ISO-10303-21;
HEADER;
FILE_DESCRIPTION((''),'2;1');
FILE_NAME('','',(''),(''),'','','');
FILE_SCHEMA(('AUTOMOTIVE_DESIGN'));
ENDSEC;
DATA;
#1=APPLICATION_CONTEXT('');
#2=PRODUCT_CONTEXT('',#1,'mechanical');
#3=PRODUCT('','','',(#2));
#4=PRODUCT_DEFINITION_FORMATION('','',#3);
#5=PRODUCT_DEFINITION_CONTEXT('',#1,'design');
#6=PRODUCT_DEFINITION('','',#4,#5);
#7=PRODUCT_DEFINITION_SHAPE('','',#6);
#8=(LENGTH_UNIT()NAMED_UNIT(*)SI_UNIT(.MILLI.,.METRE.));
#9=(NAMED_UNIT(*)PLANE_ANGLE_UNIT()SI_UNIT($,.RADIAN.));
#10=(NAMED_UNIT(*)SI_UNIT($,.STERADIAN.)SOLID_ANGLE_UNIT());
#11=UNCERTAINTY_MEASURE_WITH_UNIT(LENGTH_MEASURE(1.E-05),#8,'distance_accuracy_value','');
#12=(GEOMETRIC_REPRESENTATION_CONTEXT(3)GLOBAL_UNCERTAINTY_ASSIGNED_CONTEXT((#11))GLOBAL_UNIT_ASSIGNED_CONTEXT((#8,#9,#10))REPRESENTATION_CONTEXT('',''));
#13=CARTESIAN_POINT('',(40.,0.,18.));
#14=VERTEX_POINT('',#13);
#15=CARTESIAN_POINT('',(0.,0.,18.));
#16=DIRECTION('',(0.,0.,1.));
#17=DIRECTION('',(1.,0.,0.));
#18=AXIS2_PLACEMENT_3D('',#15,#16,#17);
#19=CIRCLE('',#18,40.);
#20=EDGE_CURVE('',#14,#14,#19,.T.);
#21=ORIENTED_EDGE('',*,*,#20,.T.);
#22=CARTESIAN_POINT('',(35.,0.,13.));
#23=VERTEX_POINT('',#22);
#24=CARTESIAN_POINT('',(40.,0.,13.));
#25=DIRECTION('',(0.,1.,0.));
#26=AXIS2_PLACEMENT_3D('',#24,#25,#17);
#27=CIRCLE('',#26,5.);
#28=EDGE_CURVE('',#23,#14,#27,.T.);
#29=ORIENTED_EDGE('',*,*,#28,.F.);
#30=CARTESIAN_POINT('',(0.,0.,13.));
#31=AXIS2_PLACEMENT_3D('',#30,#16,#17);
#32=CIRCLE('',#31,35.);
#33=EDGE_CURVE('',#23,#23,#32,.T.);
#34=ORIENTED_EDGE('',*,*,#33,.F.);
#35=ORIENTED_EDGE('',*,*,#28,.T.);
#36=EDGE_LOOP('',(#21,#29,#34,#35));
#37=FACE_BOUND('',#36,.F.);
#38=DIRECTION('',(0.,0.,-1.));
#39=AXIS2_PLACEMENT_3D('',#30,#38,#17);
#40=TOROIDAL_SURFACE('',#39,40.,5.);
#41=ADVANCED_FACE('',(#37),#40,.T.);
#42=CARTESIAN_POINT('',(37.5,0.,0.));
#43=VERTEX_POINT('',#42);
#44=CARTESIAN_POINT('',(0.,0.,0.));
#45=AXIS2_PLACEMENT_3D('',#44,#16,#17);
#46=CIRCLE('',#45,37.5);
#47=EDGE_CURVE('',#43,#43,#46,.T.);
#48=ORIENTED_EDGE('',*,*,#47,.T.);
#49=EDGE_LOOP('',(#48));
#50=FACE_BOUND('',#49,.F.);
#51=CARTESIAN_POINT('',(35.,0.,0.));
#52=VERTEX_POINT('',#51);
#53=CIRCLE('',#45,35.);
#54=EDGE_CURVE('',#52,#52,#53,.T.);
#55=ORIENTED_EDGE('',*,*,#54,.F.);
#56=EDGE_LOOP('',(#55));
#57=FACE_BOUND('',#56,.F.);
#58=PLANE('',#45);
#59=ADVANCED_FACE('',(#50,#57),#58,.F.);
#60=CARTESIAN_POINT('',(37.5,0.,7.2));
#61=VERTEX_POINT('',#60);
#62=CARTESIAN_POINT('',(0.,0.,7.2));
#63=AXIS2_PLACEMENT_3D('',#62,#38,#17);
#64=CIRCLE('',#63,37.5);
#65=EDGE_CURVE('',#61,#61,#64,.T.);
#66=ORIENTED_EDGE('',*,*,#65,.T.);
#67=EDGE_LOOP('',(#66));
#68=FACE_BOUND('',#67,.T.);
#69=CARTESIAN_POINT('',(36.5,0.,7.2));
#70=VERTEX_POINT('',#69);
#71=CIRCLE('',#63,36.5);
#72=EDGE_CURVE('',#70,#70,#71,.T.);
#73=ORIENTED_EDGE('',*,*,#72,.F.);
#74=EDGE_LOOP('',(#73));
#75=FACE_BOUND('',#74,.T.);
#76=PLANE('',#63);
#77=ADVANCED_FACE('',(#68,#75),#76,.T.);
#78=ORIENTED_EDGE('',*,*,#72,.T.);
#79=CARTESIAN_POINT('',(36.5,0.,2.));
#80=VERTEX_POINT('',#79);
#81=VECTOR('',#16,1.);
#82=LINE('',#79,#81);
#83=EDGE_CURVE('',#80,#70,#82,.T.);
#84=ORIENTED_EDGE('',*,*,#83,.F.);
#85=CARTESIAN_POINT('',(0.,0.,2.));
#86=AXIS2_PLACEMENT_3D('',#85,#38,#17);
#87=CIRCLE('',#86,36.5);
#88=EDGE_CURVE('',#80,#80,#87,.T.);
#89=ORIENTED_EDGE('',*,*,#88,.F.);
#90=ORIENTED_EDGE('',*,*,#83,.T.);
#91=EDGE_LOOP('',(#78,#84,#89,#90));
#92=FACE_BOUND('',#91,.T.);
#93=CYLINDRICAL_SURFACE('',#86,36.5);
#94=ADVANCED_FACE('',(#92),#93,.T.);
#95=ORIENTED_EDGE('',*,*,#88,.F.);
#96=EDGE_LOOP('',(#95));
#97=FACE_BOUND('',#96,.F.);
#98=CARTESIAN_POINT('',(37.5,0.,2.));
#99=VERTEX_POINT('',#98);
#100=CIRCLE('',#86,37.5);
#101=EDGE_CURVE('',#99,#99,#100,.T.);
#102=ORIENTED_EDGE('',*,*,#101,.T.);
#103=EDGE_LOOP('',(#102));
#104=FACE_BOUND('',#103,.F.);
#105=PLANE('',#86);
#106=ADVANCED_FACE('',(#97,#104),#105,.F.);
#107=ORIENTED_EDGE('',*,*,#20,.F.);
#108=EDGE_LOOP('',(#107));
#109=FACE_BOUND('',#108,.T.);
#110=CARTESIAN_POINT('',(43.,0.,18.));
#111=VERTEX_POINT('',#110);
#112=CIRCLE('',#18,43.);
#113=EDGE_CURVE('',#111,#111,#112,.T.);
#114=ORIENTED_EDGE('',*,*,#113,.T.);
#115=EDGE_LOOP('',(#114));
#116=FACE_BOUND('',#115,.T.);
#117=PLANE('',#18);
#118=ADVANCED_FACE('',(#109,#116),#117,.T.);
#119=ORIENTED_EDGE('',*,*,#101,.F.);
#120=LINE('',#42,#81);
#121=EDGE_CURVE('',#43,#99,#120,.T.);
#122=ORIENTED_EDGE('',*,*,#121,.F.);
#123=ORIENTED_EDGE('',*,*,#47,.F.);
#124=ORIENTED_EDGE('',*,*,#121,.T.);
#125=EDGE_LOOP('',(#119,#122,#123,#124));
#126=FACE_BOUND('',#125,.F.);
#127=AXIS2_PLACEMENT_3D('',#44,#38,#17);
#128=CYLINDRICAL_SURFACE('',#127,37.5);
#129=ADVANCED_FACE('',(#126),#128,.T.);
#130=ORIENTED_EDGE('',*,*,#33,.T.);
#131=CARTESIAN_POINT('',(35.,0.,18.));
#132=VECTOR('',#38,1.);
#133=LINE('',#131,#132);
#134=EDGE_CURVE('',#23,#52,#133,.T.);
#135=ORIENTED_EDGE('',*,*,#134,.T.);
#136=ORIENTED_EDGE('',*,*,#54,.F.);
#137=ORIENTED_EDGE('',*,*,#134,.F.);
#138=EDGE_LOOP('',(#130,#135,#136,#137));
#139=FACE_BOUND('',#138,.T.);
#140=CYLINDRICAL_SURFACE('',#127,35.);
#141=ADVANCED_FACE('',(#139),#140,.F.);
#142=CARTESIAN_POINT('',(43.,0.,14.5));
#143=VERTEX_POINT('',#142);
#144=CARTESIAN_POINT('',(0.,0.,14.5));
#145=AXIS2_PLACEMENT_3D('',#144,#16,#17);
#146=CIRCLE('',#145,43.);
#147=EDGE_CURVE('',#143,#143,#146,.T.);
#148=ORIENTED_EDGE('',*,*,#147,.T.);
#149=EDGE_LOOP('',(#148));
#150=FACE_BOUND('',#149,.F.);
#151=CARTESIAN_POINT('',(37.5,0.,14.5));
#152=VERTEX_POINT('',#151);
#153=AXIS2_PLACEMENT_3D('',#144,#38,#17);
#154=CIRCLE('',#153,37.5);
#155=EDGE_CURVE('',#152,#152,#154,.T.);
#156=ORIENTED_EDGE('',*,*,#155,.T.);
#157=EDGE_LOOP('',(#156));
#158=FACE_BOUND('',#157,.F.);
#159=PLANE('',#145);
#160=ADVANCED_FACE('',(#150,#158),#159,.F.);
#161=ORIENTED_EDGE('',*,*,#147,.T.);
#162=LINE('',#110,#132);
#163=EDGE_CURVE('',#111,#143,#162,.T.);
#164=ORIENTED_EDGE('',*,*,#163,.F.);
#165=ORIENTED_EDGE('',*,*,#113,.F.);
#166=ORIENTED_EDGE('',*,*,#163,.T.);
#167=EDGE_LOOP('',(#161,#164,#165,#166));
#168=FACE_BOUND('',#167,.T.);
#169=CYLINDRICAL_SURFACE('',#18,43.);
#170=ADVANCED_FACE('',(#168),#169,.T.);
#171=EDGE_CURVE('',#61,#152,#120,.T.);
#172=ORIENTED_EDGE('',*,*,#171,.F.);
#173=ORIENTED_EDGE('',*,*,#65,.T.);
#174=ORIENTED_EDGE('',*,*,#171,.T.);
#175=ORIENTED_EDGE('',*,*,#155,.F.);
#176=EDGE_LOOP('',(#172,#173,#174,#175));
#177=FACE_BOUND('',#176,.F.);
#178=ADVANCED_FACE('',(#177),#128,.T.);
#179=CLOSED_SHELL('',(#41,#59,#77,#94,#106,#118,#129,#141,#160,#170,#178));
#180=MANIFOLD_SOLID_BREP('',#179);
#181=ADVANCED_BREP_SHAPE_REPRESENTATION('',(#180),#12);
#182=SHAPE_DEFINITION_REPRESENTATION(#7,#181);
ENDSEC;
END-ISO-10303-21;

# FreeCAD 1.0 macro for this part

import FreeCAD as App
import Part
import Sketcher
Q = App.Units.Quantity


def edges_at(feature, points):
    """Names of the edges that pass closest to the given points."""
    edges = feature.Shape.Edges
    near = lambda p: min(range(len(edges)), key=lambda i: edges[i].distToShape(Part.Vertex(*p))[0])
    return sorted({f"Edge{near(p) + 1}" for p in points})

doc = App.newDocument("Part")
body = doc.addObject("PartDesign::Body", "Body")

# Sketch on XY plane
sketch1 = doc.addObject("Sketcher::SketchObject", "Sketch")
body.addObject(sketch1)
sketch1.AttachmentSupport = (doc.XY_Plane, [""])
sketch1.MapMode = "FlatFace"
sketch1.addGeometry(Part.Circle(App.Vector(0, 0, 0), App.Vector(0, 0, 1), 38), False)
sketch1.addGeometry(Part.Circle(App.Vector(0, 0, 0), App.Vector(0, 0, 1), 35), False)
sketch1.addConstraint(Sketcher.Constraint("Coincident", 0, 3, -1, 1))
sketch1.addConstraint(Sketcher.Constraint("Coincident", 1, 3, -1, 1))
sketch1.addConstraint(Sketcher.Constraint("Diameter", 0, Q("75 mm")))
sketch1.addConstraint(Sketcher.Constraint("Diameter", 1, Q("70 mm")))
pad1 = doc.addObject("PartDesign::Pad", "Pad")
body.addObject(pad1)
pad1.Profile = sketch1
pad1.Length = 18

# Sketch on XY plane
sketch2 = doc.addObject("Sketcher::SketchObject", "Sketch001")
body.addObject(sketch2)
sketch2.AttachmentSupport = (doc.XY_Plane, [""])
sketch2.MapMode = "FlatFace"
sketch2.AttachmentOffset = App.Placement(App.Vector(0, 0, 18), App.Rotation())
sketch2.addGeometry(Part.Circle(App.Vector(0, 0, 0), App.Vector(0, 0, 1), 43), False)
sketch2.addGeometry(Part.Circle(App.Vector(0, 0, 0), App.Vector(0, 0, 1), 35), False)
sketch2.addConstraint(Sketcher.Constraint("Coincident", 0, 3, -1, 1))
sketch2.addConstraint(Sketcher.Constraint("Coincident", 1, 3, -1, 1))
sketch2.addConstraint(Sketcher.Constraint("Diameter", 0, Q("86 mm")))
sketch2.addConstraint(Sketcher.Constraint("Diameter", 1, Q("70 mm")))
pad2 = doc.addObject("PartDesign::Pad", "Pad001")
body.addObject(pad2)
pad2.Profile = sketch2
pad2.Length = 3.5
pad2.Reversed = True
doc.recompute()

fillet = doc.addObject("PartDesign::Fillet", "Fillet")
body.addObject(fillet)
fillet.Base = (pad2, edges_at(pad2, [(-35, 0, 18)]))
fillet.Radius = 5

# Sketch on XY plane
sketch3 = doc.addObject("Sketcher::SketchObject", "Sketch002")
body.addObject(sketch3)
sketch3.AttachmentSupport = (doc.XY_Plane, [""])
sketch3.MapMode = "FlatFace"
sketch3.AttachmentOffset = App.Placement(App.Vector(0, 0, 2), App.Rotation())
sketch3.addGeometry(Part.Circle(App.Vector(0, 0, 0), App.Vector(0, 0, 1), 38), False)
sketch3.addGeometry(Part.Circle(App.Vector(0, 0, 0), App.Vector(0, 0, 1), 36), False)
sketch3.addConstraint(Sketcher.Constraint("Coincident", 0, 3, -1, 1))
sketch3.addConstraint(Sketcher.Constraint("Coincident", 1, 3, -1, 1))
sketch3.addConstraint(Sketcher.Constraint("Diameter", 0, Q("75 mm")))
sketch3.addConstraint(Sketcher.Constraint("Diameter", 1, Q("73 mm")))
pocket1 = doc.addObject("PartDesign::Pocket", "Pocket")
body.addObject(pocket1)
pocket1.Profile = sketch3
pocket1.Length = 5.2
pocket1.Reversed = True

doc.recompute()
